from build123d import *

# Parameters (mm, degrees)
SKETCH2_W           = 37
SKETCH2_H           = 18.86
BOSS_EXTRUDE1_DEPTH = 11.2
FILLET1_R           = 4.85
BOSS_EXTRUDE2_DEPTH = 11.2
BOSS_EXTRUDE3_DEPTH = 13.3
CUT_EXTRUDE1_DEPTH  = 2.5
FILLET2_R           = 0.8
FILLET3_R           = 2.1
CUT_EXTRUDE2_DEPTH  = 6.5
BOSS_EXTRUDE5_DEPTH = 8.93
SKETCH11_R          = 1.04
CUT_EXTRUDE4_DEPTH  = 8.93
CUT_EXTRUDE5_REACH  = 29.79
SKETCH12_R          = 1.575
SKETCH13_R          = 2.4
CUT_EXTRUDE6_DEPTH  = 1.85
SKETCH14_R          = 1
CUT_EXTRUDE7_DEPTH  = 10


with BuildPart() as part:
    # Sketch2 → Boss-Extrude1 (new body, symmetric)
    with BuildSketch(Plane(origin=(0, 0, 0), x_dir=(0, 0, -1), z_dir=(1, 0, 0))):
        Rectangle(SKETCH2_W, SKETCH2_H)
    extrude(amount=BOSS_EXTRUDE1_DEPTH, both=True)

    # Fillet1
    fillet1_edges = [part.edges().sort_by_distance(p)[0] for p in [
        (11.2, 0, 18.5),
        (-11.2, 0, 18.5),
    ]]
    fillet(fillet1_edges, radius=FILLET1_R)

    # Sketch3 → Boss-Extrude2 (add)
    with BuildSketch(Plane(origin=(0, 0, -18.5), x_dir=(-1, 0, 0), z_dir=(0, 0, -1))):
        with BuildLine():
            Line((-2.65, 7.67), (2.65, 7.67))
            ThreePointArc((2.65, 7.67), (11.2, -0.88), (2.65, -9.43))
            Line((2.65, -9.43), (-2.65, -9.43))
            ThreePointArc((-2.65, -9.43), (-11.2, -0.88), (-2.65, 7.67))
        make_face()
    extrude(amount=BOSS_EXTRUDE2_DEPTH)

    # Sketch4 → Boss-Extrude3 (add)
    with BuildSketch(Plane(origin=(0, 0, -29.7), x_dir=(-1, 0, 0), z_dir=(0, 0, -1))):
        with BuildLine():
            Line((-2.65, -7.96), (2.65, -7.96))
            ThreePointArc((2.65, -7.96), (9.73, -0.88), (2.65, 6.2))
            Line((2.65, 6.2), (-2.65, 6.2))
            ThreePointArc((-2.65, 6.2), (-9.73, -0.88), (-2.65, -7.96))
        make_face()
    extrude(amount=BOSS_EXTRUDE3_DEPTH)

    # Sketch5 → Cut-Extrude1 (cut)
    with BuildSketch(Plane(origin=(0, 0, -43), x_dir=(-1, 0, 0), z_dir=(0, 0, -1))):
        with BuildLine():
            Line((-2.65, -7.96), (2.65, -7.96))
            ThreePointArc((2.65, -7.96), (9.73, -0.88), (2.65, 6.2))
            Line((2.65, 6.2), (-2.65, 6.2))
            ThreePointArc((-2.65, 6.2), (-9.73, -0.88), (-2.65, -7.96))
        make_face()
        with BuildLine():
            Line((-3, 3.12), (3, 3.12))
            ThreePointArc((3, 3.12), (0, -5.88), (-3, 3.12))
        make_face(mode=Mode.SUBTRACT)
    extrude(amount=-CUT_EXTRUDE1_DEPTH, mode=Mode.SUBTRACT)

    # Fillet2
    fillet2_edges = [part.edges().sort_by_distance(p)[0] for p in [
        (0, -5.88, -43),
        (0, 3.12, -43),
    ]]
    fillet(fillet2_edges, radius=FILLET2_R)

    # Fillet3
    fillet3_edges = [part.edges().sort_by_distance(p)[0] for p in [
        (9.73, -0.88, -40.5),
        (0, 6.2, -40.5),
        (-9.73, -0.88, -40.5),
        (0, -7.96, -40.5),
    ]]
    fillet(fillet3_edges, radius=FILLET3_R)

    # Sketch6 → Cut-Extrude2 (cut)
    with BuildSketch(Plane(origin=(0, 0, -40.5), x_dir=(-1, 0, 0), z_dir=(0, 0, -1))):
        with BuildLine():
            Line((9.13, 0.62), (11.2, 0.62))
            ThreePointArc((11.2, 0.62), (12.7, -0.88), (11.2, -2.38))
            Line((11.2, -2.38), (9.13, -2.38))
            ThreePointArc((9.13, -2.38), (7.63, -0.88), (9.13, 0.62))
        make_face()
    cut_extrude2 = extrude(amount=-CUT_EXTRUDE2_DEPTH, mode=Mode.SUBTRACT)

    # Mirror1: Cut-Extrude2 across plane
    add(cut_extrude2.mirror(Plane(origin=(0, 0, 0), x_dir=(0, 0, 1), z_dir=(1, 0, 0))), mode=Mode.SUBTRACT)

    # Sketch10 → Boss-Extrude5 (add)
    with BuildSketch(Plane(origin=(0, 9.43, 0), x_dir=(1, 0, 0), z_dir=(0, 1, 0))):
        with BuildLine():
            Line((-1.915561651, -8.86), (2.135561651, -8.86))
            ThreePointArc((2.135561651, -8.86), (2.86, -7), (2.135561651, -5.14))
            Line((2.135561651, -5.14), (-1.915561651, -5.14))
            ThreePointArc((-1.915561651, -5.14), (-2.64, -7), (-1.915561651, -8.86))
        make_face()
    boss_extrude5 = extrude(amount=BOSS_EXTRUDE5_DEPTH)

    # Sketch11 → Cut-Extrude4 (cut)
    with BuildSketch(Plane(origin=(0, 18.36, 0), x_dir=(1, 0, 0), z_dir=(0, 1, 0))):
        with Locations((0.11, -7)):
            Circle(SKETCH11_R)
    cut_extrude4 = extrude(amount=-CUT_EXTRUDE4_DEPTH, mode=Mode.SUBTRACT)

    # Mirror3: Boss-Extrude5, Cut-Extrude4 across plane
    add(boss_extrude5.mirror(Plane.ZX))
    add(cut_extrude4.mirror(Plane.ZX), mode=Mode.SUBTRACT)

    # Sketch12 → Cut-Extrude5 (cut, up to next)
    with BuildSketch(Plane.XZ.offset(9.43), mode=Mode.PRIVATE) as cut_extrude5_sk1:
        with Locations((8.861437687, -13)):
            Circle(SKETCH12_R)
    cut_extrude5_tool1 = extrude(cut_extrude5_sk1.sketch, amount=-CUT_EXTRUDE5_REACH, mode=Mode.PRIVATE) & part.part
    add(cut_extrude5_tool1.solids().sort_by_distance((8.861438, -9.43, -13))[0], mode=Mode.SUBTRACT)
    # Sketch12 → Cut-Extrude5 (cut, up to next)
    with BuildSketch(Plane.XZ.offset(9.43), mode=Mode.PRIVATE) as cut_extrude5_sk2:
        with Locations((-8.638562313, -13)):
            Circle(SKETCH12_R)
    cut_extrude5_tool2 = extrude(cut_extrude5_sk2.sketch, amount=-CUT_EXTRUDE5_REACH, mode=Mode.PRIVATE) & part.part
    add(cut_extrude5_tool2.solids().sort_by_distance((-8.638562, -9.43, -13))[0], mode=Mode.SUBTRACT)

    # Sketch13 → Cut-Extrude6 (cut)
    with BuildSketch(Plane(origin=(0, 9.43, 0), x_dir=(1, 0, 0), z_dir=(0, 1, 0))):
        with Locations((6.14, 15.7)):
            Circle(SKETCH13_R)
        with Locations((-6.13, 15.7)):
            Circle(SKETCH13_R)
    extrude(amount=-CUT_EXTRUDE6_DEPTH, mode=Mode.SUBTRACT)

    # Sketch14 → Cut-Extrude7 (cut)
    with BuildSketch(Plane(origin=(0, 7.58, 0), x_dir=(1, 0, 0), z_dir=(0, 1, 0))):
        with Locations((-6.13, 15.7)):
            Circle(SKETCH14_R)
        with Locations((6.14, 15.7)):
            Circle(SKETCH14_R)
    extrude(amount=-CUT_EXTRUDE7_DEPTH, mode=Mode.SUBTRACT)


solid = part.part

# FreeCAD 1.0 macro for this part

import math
import FreeCAD as App
import Part
import Sketcher
from FreeCAD import Vector


def edges_at(feature, points):
    """Names of the edges that pass closest to the given points."""
    edges = feature.Shape.Edges
    near = lambda p: min(range(len(edges)), key=lambda i: edges[i].distToShape(Part.Vertex(*p))[0])
    return sorted({f"Edge{near(p) + 1}" for p in points})

doc = App.newDocument("Part")
params = doc.addObject("Spreadsheet::Sheet", "Params")
for row, (alias, value) in enumerate([
    ("sketch1_height", "37 mm"),
    ("sketch1_width", "18.86 mm"),
    ("pad1_length", "22.4 mm"),
    ("fillet_radius", "4.85 mm"),
    ("sketch2_radius", "8.55 mm"),
    ("sketch2_width", "5.3 mm"),
    ("pad2_length", "11.2 mm"),
    ("sketch3_radius", "7.08 mm"),
    ("sketch3_width", "5.3 mm"),
    ("pad3_length", "13.3 mm"),
    ("sketch4_radius", "5 mm"),
    ("sketch4_width", "6 mm"),
    ("sketch4_radius2", "7.08 mm"),
    ("sketch4_width2", "5.3 mm"),
    ("pocket1_length", "2.5 mm"),
    ("fillet2_radius", "0.8 mm"),
    ("fillet3_radius", "2.1 mm"),
    ("sketch5_radius", "1.5 mm"),
    ("sketch5_width", "2.07 mm"),
    ("pocket2_length", "6.5 mm"),
    ("sketch6_radius", "2.75 mm"),
    ("pad4_length", "8.93 mm"),
    ("sketch7_diameter", "2.08 mm"),
    ("pocket3_length", "8.93 mm"),
    ("sketch8_diameter", "3.15 mm"),
    ("sketch9_diameter", "3.15 mm"),
    ("sketch10_diameter", "4.8 mm"),
    ("pocket6_length", "1.85 mm"),
    ("sketch11_diameter", "2 mm"),
    ("pocket7_length", "10 mm"),
], start=1):
    params.set(f"A{row}", alias)
    params.set(f"B{row}", "=" + value)
    params.setAlias(f"B{row}", alias)

body = doc.addObject("PartDesign::Body", "Body")

# Sketch on YZ plane
sketch1 = body.newObject("Sketcher::SketchObject", "Sketch")
sketch1.AttachmentSupport = (doc.getObject("YZ_Plane"), [""])
sketch1.MapMode = "FlatFace"
sketch1.addGeometry([
    Part.LineSegment(Vector(9, 18, 0), Vector(-9, 18, 0)),
    Part.LineSegment(Vector(-9, 18, 0), Vector(-9, -18, 0)),
    Part.LineSegment(Vector(-9, -18, 0), Vector(9, -18, 0)),
    Part.LineSegment(Vector(9, -18, 0), Vector(9, 18, 0)),
], False)
sketch1.addConstraint([
    Sketcher.Constraint("Coincident", 0, 2, 1, 1),
    Sketcher.Constraint("Coincident", 1, 2, 2, 1),
    Sketcher.Constraint("Coincident", 2, 2, 3, 1),
    Sketcher.Constraint("Coincident", 3, 2, 0, 1),
    Sketcher.Constraint("Horizontal", 0),
    Sketcher.Constraint("Vertical", 1),
    Sketcher.Constraint("Horizontal", 2),
    Sketcher.Constraint("Vertical", 3),
    Sketcher.Constraint("Symmetric", 0, 2, 2, 2, -1, 1),
    Sketcher.Constraint("DistanceY", 1, 2, 1, 1, 37.0),
    Sketcher.Constraint("DistanceX", 0, 2, 0, 1, 18.86),
])
sketch1.setExpression("Constraints[9]", "Params.sketch1_height")
sketch1.setExpression("Constraints[10]", "Params.sketch1_width")
pad1 = body.newObject("PartDesign::Pad", "Pad")
pad1.Profile = sketch1
pad1.setExpression("Length", "Params.pad1_length")
pad1.Midplane = True
doc.recompute()

fillet = body.newObject("PartDesign::Fillet", "Fillet")
fillet.Base = (pad1, edges_at(pad1, [(11.2, 0, 18.5), (-11.2, 0, 18.5)]))
fillet.setExpression("Radius", "Params.fillet_radius")

# Sketch on XY plane
sketch2 = body.newObject("Sketcher::SketchObject", "Sketch001")
sketch2.AttachmentSupport = (doc.getObject("XY_Plane"), [""])
sketch2.MapMode = "FlatFace"
sketch2.AttachmentOffset = App.Placement(Vector(0, 0, -18.5), App.Rotation())
sketch2.addGeometry([
    Part.LineSegment(Vector(-3, 8, 0), Vector(3, 8, 0)),
    Part.ArcOfCircle(Part.Circle(Vector(3, -1, 0), Vector(0, 0, 1), 9), math.radians(-90), math.radians(90)),
    Part.LineSegment(Vector(3, -9, 0), Vector(-3, -9, 0)),
    Part.ArcOfCircle(Part.Circle(Vector(-3, -1, 0), Vector(0, 0, 1), 9), math.radians(90), math.radians(270)),
], False)
sketch2.addConstraint([
    Sketcher.Constraint("Tangent", 0, 2, 1, 2),
    Sketcher.Constraint("Tangent", 1, 1, 2, 1),
    Sketcher.Constraint("Tangent", 2, 2, 3, 2),
    Sketcher.Constraint("Tangent", 3, 1, 0, 1),
    Sketcher.Constraint("Horizontal", 0),
    Sketcher.Constraint("Horizontal", 2),
    Sketcher.Constraint("Radius", 1, 8.55),
    Sketcher.Constraint("DistanceX", 0, 1, 0, 2, 5.3),
    Sketcher.Constraint("DistanceX", -1, 1, 1, 3, 2.65),
    Sketcher.Constraint("DistanceY", 1, 3, -1, 1, 0.88),
])
sketch2.setExpression("Constraints[6]", "Params.sketch2_radius")
sketch2.setExpression("Constraints[7]", "Params.sketch2_width")
pad2 = body.newObject("PartDesign::Pad", "Pad001")
pad2.Profile = sketch2
pad2.setExpression("Length", "Params.pad2_length")
pad2.Reversed = True

# Sketch on XY plane
sketch3 = body.newObject("Sketcher::SketchObject", "Sketch002")
sketch3.AttachmentSupport = (doc.getObject("XY_Plane"), [""])
sketch3.MapMode = "FlatFace"
sketch3.AttachmentOffset = App.Placement(Vector(0, 0, -29.7), App.Rotation())
sketch3.addGeometry([
    Part.LineSegment(Vector(3, -8, 0), Vector(-3, -8, 0)),
    Part.ArcOfCircle(Part.Circle(Vector(-3, -1, 0), Vector(0, 0, 1), 7), math.radians(90), math.radians(270)),
    Part.LineSegment(Vector(-3, 6, 0), Vector(3, 6, 0)),
    Part.ArcOfCircle(Part.Circle(Vector(3, -1, 0), Vector(0, 0, 1), 7), math.radians(-90), math.radians(90)),
], False)
sketch3.addConstraint([
    Sketcher.Constraint("Tangent", 0, 2, 1, 2),
    Sketcher.Constraint("Tangent", 1, 1, 2, 1),
    Sketcher.Constraint("Tangent", 2, 2, 3, 2),
    Sketcher.Constraint("Tangent", 3, 1, 0, 1),
    Sketcher.Constraint("Horizontal", 0),
    Sketcher.Constraint("Horizontal", 2),
    Sketcher.Constraint("Radius", 1, 7.08),
    Sketcher.Constraint("DistanceX", 0, 2, 0, 1, 5.3),
    Sketcher.Constraint("DistanceY", -1, 1, 1, 1, 6.2),
    Sketcher.Constraint("DistanceX", 1, 3, -1, 1, 2.65),
])
sketch3.setExpression("Constraints[6]", "Params.sketch3_radius")
sketch3.setExpression("Constraints[7]", "Params.sketch3_width")
pad3 = body.newObject("PartDesign::Pad", "Pad002")
pad3.Profile = sketch3
pad3.setExpression("Length", "Params.pad3_length")
pad3.Reversed = True

# Sketch on XY plane
sketch4 = body.newObject("Sketcher::SketchObject", "Sketch003")
sketch4.AttachmentSupport = (doc.getObject("XY_Plane"), [""])
sketch4.MapMode = "FlatFace"
sketch4.AttachmentOffset = App.Placement(Vector(0, 0, -43), App.Rotation())
sketch4.addGeometry([
    Part.LineSegment(Vector(3, -8, 0), Vector(-3, -8, 0)),  # 0
    Part.ArcOfCircle(Part.Circle(Vector(-3, -1, 0), Vector(0, 0, 1), 7), math.radians(90), math.radians(270)),  # 1
    Part.LineSegment(Vector(-3, 6, 0), Vector(3, 6, 0)),  # 2
    Part.ArcOfCircle(Part.Circle(Vector(3, -1, 0), Vector(0, 0, 1), 7), math.radians(-90), math.radians(90)),  # 3
    Part.ArcOfCircle(Part.Circle(Vector(0, -1, 0), Vector(0, 0, 1), 5), math.radians(127), math.radians(413)),  # 4
    Part.LineSegment(Vector(3, 3, 0), Vector(-3, 3, 0)),  # 5
], False)
sketch4.addConstraint([
    Sketcher.Constraint("Tangent", 0, 2, 1, 2),
    Sketcher.Constraint("Tangent", 1, 1, 2, 1),
    Sketcher.Constraint("Tangent", 2, 2, 3, 2),
    Sketcher.Constraint("Tangent", 3, 1, 0, 1),
    Sketcher.Constraint("Coincident", 4, 1, 5, 2),
    Sketcher.Constraint("Coincident", 5, 1, 4, 2),
    Sketcher.Constraint("Horizontal", 0),
    Sketcher.Constraint("Horizontal", 2),
    Sketcher.Constraint("Horizontal", 5),
    Sketcher.Constraint("PointOnObject", 4, 3, -2),
    Sketcher.Constraint("Horizontal", 3, 3, 4, 3),
    Sketcher.Constraint("Radius", 4, 5.0),
    Sketcher.Constraint("DistanceX", 5, 2, 5, 1, 6.0),
    Sketcher.Constraint("Radius", 1, 7.08),
    Sketcher.Constraint("DistanceX", 0, 2, 0, 1, 5.3),
    Sketcher.Constraint("DistanceY", -1, 1, 1, 1, 6.2),
    Sketcher.Constraint("DistanceX", 1, 3, -1, 1, 2.65),
])
sketch4.setExpression("Constraints[11]", "Params.sketch4_radius")
sketch4.setExpression("Constraints[12]", "Params.sketch4_width")
sketch4.setExpression("Constraints[13]", "Params.sketch4_radius2")
sketch4.setExpression("Constraints[14]", "Params.sketch4_width2")
pocket1 = body.newObject("PartDesign::Pocket", "Pocket")
pocket1.Profile = sketch4
pocket1.setExpression("Length", "Params.pocket1_length")
pocket1.Reversed = True
doc.recompute()

fillet2 = body.newObject("PartDesign::Fillet", "Fillet001")
fillet2.Base = (pocket1, edges_at(pocket1, [(0, -5.88, -43), (0, 3.12, -43)]))
fillet2.setExpression("Radius", "Params.fillet2_radius")
doc.recompute()

fillet3 = body.newObject("PartDesign::Fillet", "Fillet002")
fillet3.Base = (fillet2, edges_at(fillet2, [
    (9.73, -0.88, -40.5),
    (0, 6.2, -40.5),
    (-9.73, -0.88, -40.5),
    (0, -7.96, -40.5),
]))
fillet3.setExpression("Radius", "Params.fillet3_radius")

# Sketch on XY plane
sketch5 = body.newObject("Sketcher::SketchObject", "Sketch004")
sketch5.AttachmentSupport = (doc.getObject("XY_Plane"), [""])
sketch5.MapMode = "FlatFace"
sketch5.AttachmentOffset = App.Placement(Vector(0, 0, -40.5), App.Rotation())
sketch5.addGeometry([
    Part.LineSegment(Vector(-11.2, 0.6, 0), Vector(-9.1, 0.6, 0)),
    Part.ArcOfCircle(Part.Circle(Vector(-9.1, -0.9, 0), Vector(0, 0, 1), 1.5), math.radians(-90), math.radians(90)),
    Part.LineSegment(Vector(-9.1, -2.4, 0), Vector(-11.2, -2.4, 0)),
    Part.ArcOfCircle(Part.Circle(Vector(-11.2, -0.9, 0), Vector(0, 0, 1), 1.5), math.radians(90), math.radians(270)),
], False)
sketch5.addConstraint([
    Sketcher.Constraint("Tangent", 0, 2, 1, 2),
    Sketcher.Constraint("Tangent", 1, 1, 2, 1),
    Sketcher.Constraint("Tangent", 2, 2, 3, 2),
    Sketcher.Constraint("Tangent", 3, 1, 0, 1),
    Sketcher.Constraint("Horizontal", 0),
    Sketcher.Constraint("Horizontal", 2),
    Sketcher.Constraint("Radius", 1, 1.5),
    Sketcher.Constraint("DistanceX", 0, 1, 0, 2, 2.07),
    Sketcher.Constraint("DistanceX", 3, 3, -1, 1, 11.2),
    Sketcher.Constraint("DistanceY", 1, 3, -1, 1, 0.88),
])
sketch5.setExpression("Constraints[6]", "Params.sketch5_radius")
sketch5.setExpression("Constraints[7]", "Params.sketch5_width")
pocket2 = body.newObject("PartDesign::Pocket", "Pocket001")
pocket2.Profile = sketch5
pocket2.setExpression("Length", "Params.pocket2_length")
pocket2.Reversed = True
doc.recompute()

mirrored = body.newObject("PartDesign::Mirrored", "Mirrored")
mirrored.Originals = [pocket2]
mirrored.MirrorPlane = (doc.getObject("YZ_Plane"), [""])
body.Tip = mirrored

# Sketch on XZ plane
sketch6 = body.newObject("Sketcher::SketchObject", "Sketch005")
sketch6.AttachmentSupport = (doc.getObject("XZ_Plane"), [""])
sketch6.MapMode = "FlatFace"
sketch6.AttachmentOffset = App.Placement(Vector(0, 0, -9.43), App.Rotation())
sketch6.addGeometry([
    Part.LineSegment(Vector(-1.9, 8.9, 0), Vector(2.1, 8.9, 0)),
    Part.ArcOfCircle(Part.Circle(Vector(0.1, 7, 0), Vector(0, 0, 1), 2.8), math.radians(-43), math.radians(43)),
    Part.LineSegment(Vector(2.1, 5.1, 0), Vector(-1.9, 5.1, 0)),
    Part.ArcOfCircle(Part.Circle(Vector(0.1, 7, 0), Vector(0, 0, 1), 2.8), math.radians(137), math.radians(223)),
], False)
sketch6.addConstraint([
    Sketcher.Constraint("Coincident", 0, 2, 1, 2),
    Sketcher.Constraint("Coincident", 1, 1, 2, 1),
    Sketcher.Constraint("Coincident", 2, 2, 3, 2),
    Sketcher.Constraint("Coincident", 3, 1, 0, 1),
    Sketcher.Constraint("Horizontal", 0),
    Sketcher.Constraint("Horizontal", 2),
    Sketcher.Constraint("Coincident", 3, 3, 1, 3),
    Sketcher.Constraint("Equal", 1, 3),
    Sketcher.Constraint("Vertical", 0, 2, 1, 1),
    Sketcher.Constraint("Radius", 1, 2.75),
    Sketcher.Constraint("DistanceY", -1, 1, 1, 3, 7.0),
    Sketcher.Constraint("DistanceX", -1, 1, 1, 3, 0.11),
    Sketcher.Constraint("DistanceY", -1, 1, 0, 2, 8.86),
])
sketch6.setExpression("Constraints[9]", "Params.sketch6_radius")
pad4 = body.newObject("PartDesign::Pad", "Pad003")
pad4.Profile = sketch6
pad4.setExpression("Length", "Params.pad4_length")
pad4.Reversed = True

# Sketch on XZ plane
sketch7 = body.newObject("Sketcher::SketchObject", "Sketch006")
sketch7.AttachmentSupport = (doc.getObject("XZ_Plane"), [""])
sketch7.MapMode = "FlatFace"
sketch7.AttachmentOffset = App.Placement(Vector(0, 0, -18.36), App.Rotation())
sketch7.addGeometry(Part.Circle(Vector(0.1, 7, 0), Vector(0, 0, 1), 1), False)
sketch7.addConstraint([
    Sketcher.Constraint("Diameter", 0, 2.08),
    Sketcher.Constraint("DistanceY", -1, 1, 0, 3, 7.0),
    Sketcher.Constraint("DistanceX", -1, 1, 0, 3, 0.11),
])
sketch7.setExpression("Constraints[0]", "Params.sketch7_diameter")
pocket3 = body.newObject("PartDesign::Pocket", "Pocket002")
pocket3.Profile = sketch7
pocket3.setExpression("Length", "Params.pocket3_length")
pocket3.Reversed = True
doc.recompute()

mirrored2 = body.newObject("PartDesign::Mirrored", "Mirrored001")
mirrored2.Originals = [pad4, pocket3]
mirrored2.MirrorPlane = (doc.getObject("XZ_Plane"), [""])
body.Tip = mirrored2

# Sketch on XZ plane
sketch8 = body.newObject("Sketcher::SketchObject", "Sketch007")
sketch8.AttachmentSupport = (doc.getObject("XZ_Plane"), [""])
sketch8.MapMode = "FlatFace"
sketch8.AttachmentOffset = App.Placement(Vector(0, 0, 9.43), App.Rotation())
sketch8.addGeometry(Part.Circle(Vector(8.9, -13, 0), Vector(0, 0, 1), 1.6), False)
sketch8.addConstraint([
    Sketcher.Constraint("Diameter", 0, 3.15),
    Sketcher.Constraint("DistanceY", 0, 3, -1, 1, 13.0),
    Sketcher.Constraint("DistanceX", -1, 1, 0, 3, 8.861438),
])
sketch8.setExpression("Constraints[0]", "Params.sketch8_diameter")
pocket4 = body.newObject("PartDesign::Pocket", "Pocket003")
pocket4.Profile = sketch8
pocket4.Type = "UpToFirst"

# Sketch on XZ plane
sketch9 = body.newObject("Sketcher::SketchObject", "Sketch008")
sketch9.AttachmentSupport = (doc.getObject("XZ_Plane"), [""])
sketch9.MapMode = "FlatFace"
sketch9.AttachmentOffset = App.Placement(Vector(0, 0, 9.43), App.Rotation())
sketch9.addGeometry(Part.Circle(Vector(-8.6, -13, 0), Vector(0, 0, 1), 1.6), False)
sketch9.addConstraint([
    Sketcher.Constraint("Diameter", 0, 3.15),
    Sketcher.Constraint("DistanceY", 0, 3, -1, 1, 13.0),
    Sketcher.Constraint("DistanceX", 0, 3, -1, 1, 8.638562),
])
sketch9.setExpression("Constraints[0]", "Params.sketch9_diameter")
pocket5 = body.newObject("PartDesign::Pocket", "Pocket004")
pocket5.Profile = sketch9
pocket5.Type = "UpToFirst"

# Sketch on XZ plane
sketch10 = body.newObject("Sketcher::SketchObject", "Sketch009")
sketch10.AttachmentSupport = (doc.getObject("XZ_Plane"), [""])
sketch10.MapMode = "FlatFace"
sketch10.AttachmentOffset = App.Placement(Vector(0, 0, -9.43), App.Rotation())
sketch10.addGeometry([
    Part.Circle(Vector(6.1, -15.7, 0), Vector(0, 0, 1), 2.4),
    Part.Circle(Vector(-6.1, -15.7, 0), Vector(0, 0, 1), 2.4),
], False)
sketch10.addConstraint([
    Sketcher.Constraint("Equal", 0, 1),
    Sketcher.Constraint("Horizontal", 0, 3, 1, 3),
    Sketcher.Constraint("Diameter", 0, 4.8),
    Sketcher.Constraint("DistanceY", 0, 3, -1, 1, 15.7),
    Sketcher.Constraint("DistanceX", -1, 1, 0, 3, 6.14),
    Sketcher.Constraint("DistanceX", 1, 3, -1, 1, 6.13),
])
sketch10.setExpression("Constraints[2]", "Params.sketch10_diameter")
pocket6 = body.newObject("PartDesign::Pocket", "Pocket005")
pocket6.Profile = sketch10
pocket6.setExpression("Length", "Params.pocket6_length")
pocket6.Reversed = True

# Sketch on XZ plane
sketch11 = body.newObject("Sketcher::SketchObject", "Sketch010")
sketch11.AttachmentSupport = (doc.getObject("XZ_Plane"), [""])
sketch11.MapMode = "FlatFace"
sketch11.AttachmentOffset = App.Placement(Vector(0, 0, -7.58), App.Rotation())
sketch11.addGeometry([
    Part.Circle(Vector(-6.1, -15.7, 0), Vector(0, 0, 1), 1),
    Part.Circle(Vector(6.1, -15.7, 0), Vector(0, 0, 1), 1),
], False)
sketch11.addConstraint([
    Sketcher.Constraint("Equal", 0, 1),
    Sketcher.Constraint("Horizontal", 0, 3, 1, 3),
    Sketcher.Constraint("Diameter", 0, 2.0),
    Sketcher.Constraint("DistanceY", 0, 3, -1, 1, 15.7),
    Sketcher.Constraint("DistanceX", 0, 3, -1, 1, 6.13),
    Sketcher.Constraint("DistanceX", -1, 1, 1, 3, 6.14),
])
sketch11.setExpression("Constraints[2]", "Params.sketch11_diameter")
pocket7 = body.newObject("PartDesign::Pocket", "Pocket006")
pocket7.Profile = sketch11
pocket7.setExpression("Length", "Params.pocket7_length")
pocket7.Reversed = True

doc.recompute()
